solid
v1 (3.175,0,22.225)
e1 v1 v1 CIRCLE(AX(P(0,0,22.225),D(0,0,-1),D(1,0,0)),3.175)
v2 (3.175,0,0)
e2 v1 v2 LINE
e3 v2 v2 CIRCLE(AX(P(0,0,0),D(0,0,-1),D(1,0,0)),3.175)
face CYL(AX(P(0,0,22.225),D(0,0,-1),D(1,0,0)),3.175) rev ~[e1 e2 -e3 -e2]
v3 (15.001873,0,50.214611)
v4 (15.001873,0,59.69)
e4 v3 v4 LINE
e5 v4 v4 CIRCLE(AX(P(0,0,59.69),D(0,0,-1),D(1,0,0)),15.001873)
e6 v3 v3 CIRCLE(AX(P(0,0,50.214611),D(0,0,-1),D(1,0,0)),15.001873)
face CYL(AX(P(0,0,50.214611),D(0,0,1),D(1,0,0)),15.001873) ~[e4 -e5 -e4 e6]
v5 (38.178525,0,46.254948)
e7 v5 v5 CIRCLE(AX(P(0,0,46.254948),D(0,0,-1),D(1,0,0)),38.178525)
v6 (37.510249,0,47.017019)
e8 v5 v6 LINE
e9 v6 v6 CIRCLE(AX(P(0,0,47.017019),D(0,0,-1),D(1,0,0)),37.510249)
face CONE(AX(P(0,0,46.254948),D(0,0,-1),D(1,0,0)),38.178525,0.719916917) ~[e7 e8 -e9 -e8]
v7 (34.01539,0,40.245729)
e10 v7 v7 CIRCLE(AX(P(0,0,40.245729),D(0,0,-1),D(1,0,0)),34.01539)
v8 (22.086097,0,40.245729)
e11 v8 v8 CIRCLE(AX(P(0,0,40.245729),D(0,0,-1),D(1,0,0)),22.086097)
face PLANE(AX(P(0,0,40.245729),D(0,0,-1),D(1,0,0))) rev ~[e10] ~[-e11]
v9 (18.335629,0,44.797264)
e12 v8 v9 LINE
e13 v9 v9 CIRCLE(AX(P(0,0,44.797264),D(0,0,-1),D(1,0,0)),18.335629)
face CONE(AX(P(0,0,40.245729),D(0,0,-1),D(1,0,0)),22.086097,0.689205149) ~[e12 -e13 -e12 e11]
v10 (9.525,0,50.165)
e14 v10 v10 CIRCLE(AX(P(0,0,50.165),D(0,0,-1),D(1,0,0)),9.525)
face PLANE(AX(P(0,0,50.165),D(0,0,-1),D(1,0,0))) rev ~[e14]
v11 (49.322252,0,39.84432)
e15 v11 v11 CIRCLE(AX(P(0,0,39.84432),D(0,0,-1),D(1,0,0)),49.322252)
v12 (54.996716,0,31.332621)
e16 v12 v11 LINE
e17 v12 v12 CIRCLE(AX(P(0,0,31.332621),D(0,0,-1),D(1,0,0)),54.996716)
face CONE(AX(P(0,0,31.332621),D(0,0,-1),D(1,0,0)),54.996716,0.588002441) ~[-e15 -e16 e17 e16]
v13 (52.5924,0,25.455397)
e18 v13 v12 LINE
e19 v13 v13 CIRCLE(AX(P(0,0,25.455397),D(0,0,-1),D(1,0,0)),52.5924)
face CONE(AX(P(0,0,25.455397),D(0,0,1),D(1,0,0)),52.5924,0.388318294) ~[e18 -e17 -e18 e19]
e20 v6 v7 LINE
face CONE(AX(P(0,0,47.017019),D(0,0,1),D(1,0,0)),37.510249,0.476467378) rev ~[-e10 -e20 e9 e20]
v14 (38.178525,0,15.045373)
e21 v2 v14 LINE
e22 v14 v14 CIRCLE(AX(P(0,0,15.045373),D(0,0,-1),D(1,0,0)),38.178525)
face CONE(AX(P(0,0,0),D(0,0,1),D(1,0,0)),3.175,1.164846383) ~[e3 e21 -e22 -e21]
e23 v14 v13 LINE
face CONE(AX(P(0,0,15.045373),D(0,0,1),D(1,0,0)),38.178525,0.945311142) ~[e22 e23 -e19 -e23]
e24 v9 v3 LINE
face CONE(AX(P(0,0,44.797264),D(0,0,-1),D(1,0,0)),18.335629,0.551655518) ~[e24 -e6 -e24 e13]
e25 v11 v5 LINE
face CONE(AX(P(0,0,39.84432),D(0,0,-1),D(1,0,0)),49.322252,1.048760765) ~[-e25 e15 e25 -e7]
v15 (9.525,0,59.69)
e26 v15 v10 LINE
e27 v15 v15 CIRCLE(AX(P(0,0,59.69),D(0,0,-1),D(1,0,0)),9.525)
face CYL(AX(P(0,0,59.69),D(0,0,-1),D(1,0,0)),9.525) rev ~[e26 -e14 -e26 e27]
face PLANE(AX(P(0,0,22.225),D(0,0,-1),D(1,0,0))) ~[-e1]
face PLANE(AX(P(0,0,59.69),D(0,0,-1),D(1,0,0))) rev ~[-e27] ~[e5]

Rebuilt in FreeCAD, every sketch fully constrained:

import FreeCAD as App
import Part
import Sketcher
Q = App.Units.Quantity

doc = App.newDocument("Part")
body = doc.addObject("PartDesign::Body", "Body")

# Sketch on XZ plane
sketch1 = doc.addObject("Sketcher::SketchObject", "Sketch")
body.addObject(sketch1)
sketch1.AttachmentSupport = (doc.XZ_Plane, [""])
sketch1.MapMode = "FlatFace"
sketch1.addGeometry([
    Part.LineSegment(App.Vector(0, 50.2, 0), App.Vector(0, 22.2, 0)),  # 0
    Part.LineSegment(App.Vector(0, 22.2, 0), App.Vector(3.2, 22.2, 0)),  # 1
    Part.LineSegment(App.Vector(3.2, 22.2, 0), App.Vector(3.2, 0, 0)),  # 2
    Part.LineSegment(App.Vector(3.2, 0, 0), App.Vector(38.2, 15, 0)),  # 3
    Part.LineSegment(App.Vector(38.2, 15, 0), App.Vector(52.6, 25.5, 0)),  # 4
    Part.LineSegment(App.Vector(52.6, 25.5, 0), App.Vector(55, 31.3, 0)),  # 5
    Part.LineSegment(App.Vector(55, 31.3, 0), App.Vector(49.3, 39.8, 0)),  # 6
    Part.LineSegment(App.Vector(49.3, 39.8, 0), App.Vector(38.2, 46.3, 0)),  # 7
    Part.LineSegment(App.Vector(38.2, 46.3, 0), App.Vector(37.5, 47, 0)),  # 8
    Part.LineSegment(App.Vector(37.5, 47, 0), App.Vector(34, 40.2, 0)),  # 9
    Part.LineSegment(App.Vector(34, 40.2, 0), App.Vector(22.1, 40.2, 0)),  # 10
    Part.LineSegment(App.Vector(22.1, 40.2, 0), App.Vector(18.3, 44.8, 0)),  # 11
    Part.LineSegment(App.Vector(18.3, 44.8, 0), App.Vector(15, 50.2, 0)),  # 12
    Part.LineSegment(App.Vector(15, 50.2, 0), App.Vector(15, 59.7, 0)),  # 13
    Part.LineSegment(App.Vector(15, 59.7, 0), App.Vector(9.5, 59.7, 0)),  # 14
    Part.LineSegment(App.Vector(9.5, 59.7, 0), App.Vector(9.5, 50.2, 0)),  # 15
    Part.LineSegment(App.Vector(9.5, 50.2, 0), App.Vector(0, 50.2, 0)),  # 16
], False)
sketch1.addConstraint([
    Sketcher.Constraint("Coincident", 0, 2, 1, 1),
    Sketcher.Constraint("Coincident", 1, 2, 2, 1),
    Sketcher.Constraint("Coincident", 2, 2, 3, 1),
    Sketcher.Constraint("Coincident", 3, 2, 4, 1),
    Sketcher.Constraint("Coincident", 4, 2, 5, 1),
    Sketcher.Constraint("Coincident", 5, 2, 6, 1),
    Sketcher.Constraint("Coincident", 6, 2, 7, 1),
    Sketcher.Constraint("Coincident", 7, 2, 8, 1),
    Sketcher.Constraint("Coincident", 8, 2, 9, 1),
    Sketcher.Constraint("Coincident", 9, 2, 10, 1),
    Sketcher.Constraint("Coincident", 10, 2, 11, 1),
    Sketcher.Constraint("Coincident", 11, 2, 12, 1),
    Sketcher.Constraint("Coincident", 12, 2, 13, 1),
    Sketcher.Constraint("Coincident", 13, 2, 14, 1),
    Sketcher.Constraint("Coincident", 14, 2, 15, 1),
    Sketcher.Constraint("Coincident", 15, 2, 16, 1),
    Sketcher.Constraint("Coincident", 16, 2, 0, 1),
    Sketcher.Constraint("Vertical", 0),
    Sketcher.Constraint("Horizontal", 1),
    Sketcher.Constraint("Vertical", 2),
    Sketcher.Constraint("Horizontal", 10),
    Sketcher.Constraint("Vertical", 13),
    Sketcher.Constraint("Horizontal", 14),
    Sketcher.Constraint("Vertical", 15),
    Sketcher.Constraint("Horizontal", 16),
    Sketcher.Constraint("PointOnObject", 0, 2, -2),
    Sketcher.Constraint("PointOnObject", 2, 2, -1),
    Sketcher.Constraint("Vertical", 3, 2, 7, 2),
    Sketcher.Constraint("Equal", 16, 15),
    Sketcher.Constraint("DistanceY", 0, 2, 0, 1, Q("1.1 in")),
    Sketcher.Constraint("Distance", 3, Q("1.5 in")),
    Sketcher.Constraint("Distance", 4, Q("0.7 in")),
    Sketcher.Constraint("Distance", 9, Q("0.3 in")),
    Sketcher.Constraint("Distance", 5, Q("0.25 in")),
    Sketcher.Constraint("DistanceX", 1, 1, 1, 2, Q("0.125 in")),
    Sketcher.Constraint("DistanceX", 16, 2, 16, 1, Q("0.375 in")),
    Sketcher.Constraint("DistanceY", 2, 2, 2, 1, Q("0.875 in")),
    Sketcher.Constraint("DistanceY", 13, 1, 13, 2, Q("9.475389 mm")),
    Sketcher.Constraint("DistanceX", -1, 1, 4, 2, Q("52.5924 mm")),
    Sketcher.Constraint("DistanceY", 5, 2, 6, 2, Q("8.511699 mm")),
    Sketcher.Constraint("DistanceY", 6, 2, 8, 2, Q("7.172699 mm")),
    Sketcher.Constraint("Distance", 7, Q("12.85608 mm")),
    Sketcher.Constraint("Distance", 8, Q("1.01358 mm")),
    Sketcher.Constraint("Distance", 12, Q("6.360942 mm")),
    Sketcher.Constraint("DistanceX", 10, 2, 10, 1, Q("11.929293 mm")),
    Sketcher.Constraint("DistanceX", 14, 2, 14, 1, Q("5.476873 mm")),
    Sketcher.Constraint("DistanceY", -1, 1, 5, 2, Q("31.332621 mm")),
    Sketcher.Constraint("DistanceX", -1, 1, 8, 2, Q("37.510249 mm")),
    Sketcher.Constraint("DistanceX", -1, 1, 9, 2, Q("34.01539 mm")),
    Sketcher.Constraint("DistanceX", -1, 1, 11, 2, Q("18.335629 mm")),
    Sketcher.Constraint("DistanceX", 3, 2, 5, 2, Q("16.818191 mm")),
])
revolution = doc.addObject("PartDesign::Revolution", "Revolution")
body.addObject(revolution)
revolution.Profile = sketch1
revolution.ReferenceAxis = (sketch1, ["V_Axis"])
revolution.Angle = 360

doc.recompute()
